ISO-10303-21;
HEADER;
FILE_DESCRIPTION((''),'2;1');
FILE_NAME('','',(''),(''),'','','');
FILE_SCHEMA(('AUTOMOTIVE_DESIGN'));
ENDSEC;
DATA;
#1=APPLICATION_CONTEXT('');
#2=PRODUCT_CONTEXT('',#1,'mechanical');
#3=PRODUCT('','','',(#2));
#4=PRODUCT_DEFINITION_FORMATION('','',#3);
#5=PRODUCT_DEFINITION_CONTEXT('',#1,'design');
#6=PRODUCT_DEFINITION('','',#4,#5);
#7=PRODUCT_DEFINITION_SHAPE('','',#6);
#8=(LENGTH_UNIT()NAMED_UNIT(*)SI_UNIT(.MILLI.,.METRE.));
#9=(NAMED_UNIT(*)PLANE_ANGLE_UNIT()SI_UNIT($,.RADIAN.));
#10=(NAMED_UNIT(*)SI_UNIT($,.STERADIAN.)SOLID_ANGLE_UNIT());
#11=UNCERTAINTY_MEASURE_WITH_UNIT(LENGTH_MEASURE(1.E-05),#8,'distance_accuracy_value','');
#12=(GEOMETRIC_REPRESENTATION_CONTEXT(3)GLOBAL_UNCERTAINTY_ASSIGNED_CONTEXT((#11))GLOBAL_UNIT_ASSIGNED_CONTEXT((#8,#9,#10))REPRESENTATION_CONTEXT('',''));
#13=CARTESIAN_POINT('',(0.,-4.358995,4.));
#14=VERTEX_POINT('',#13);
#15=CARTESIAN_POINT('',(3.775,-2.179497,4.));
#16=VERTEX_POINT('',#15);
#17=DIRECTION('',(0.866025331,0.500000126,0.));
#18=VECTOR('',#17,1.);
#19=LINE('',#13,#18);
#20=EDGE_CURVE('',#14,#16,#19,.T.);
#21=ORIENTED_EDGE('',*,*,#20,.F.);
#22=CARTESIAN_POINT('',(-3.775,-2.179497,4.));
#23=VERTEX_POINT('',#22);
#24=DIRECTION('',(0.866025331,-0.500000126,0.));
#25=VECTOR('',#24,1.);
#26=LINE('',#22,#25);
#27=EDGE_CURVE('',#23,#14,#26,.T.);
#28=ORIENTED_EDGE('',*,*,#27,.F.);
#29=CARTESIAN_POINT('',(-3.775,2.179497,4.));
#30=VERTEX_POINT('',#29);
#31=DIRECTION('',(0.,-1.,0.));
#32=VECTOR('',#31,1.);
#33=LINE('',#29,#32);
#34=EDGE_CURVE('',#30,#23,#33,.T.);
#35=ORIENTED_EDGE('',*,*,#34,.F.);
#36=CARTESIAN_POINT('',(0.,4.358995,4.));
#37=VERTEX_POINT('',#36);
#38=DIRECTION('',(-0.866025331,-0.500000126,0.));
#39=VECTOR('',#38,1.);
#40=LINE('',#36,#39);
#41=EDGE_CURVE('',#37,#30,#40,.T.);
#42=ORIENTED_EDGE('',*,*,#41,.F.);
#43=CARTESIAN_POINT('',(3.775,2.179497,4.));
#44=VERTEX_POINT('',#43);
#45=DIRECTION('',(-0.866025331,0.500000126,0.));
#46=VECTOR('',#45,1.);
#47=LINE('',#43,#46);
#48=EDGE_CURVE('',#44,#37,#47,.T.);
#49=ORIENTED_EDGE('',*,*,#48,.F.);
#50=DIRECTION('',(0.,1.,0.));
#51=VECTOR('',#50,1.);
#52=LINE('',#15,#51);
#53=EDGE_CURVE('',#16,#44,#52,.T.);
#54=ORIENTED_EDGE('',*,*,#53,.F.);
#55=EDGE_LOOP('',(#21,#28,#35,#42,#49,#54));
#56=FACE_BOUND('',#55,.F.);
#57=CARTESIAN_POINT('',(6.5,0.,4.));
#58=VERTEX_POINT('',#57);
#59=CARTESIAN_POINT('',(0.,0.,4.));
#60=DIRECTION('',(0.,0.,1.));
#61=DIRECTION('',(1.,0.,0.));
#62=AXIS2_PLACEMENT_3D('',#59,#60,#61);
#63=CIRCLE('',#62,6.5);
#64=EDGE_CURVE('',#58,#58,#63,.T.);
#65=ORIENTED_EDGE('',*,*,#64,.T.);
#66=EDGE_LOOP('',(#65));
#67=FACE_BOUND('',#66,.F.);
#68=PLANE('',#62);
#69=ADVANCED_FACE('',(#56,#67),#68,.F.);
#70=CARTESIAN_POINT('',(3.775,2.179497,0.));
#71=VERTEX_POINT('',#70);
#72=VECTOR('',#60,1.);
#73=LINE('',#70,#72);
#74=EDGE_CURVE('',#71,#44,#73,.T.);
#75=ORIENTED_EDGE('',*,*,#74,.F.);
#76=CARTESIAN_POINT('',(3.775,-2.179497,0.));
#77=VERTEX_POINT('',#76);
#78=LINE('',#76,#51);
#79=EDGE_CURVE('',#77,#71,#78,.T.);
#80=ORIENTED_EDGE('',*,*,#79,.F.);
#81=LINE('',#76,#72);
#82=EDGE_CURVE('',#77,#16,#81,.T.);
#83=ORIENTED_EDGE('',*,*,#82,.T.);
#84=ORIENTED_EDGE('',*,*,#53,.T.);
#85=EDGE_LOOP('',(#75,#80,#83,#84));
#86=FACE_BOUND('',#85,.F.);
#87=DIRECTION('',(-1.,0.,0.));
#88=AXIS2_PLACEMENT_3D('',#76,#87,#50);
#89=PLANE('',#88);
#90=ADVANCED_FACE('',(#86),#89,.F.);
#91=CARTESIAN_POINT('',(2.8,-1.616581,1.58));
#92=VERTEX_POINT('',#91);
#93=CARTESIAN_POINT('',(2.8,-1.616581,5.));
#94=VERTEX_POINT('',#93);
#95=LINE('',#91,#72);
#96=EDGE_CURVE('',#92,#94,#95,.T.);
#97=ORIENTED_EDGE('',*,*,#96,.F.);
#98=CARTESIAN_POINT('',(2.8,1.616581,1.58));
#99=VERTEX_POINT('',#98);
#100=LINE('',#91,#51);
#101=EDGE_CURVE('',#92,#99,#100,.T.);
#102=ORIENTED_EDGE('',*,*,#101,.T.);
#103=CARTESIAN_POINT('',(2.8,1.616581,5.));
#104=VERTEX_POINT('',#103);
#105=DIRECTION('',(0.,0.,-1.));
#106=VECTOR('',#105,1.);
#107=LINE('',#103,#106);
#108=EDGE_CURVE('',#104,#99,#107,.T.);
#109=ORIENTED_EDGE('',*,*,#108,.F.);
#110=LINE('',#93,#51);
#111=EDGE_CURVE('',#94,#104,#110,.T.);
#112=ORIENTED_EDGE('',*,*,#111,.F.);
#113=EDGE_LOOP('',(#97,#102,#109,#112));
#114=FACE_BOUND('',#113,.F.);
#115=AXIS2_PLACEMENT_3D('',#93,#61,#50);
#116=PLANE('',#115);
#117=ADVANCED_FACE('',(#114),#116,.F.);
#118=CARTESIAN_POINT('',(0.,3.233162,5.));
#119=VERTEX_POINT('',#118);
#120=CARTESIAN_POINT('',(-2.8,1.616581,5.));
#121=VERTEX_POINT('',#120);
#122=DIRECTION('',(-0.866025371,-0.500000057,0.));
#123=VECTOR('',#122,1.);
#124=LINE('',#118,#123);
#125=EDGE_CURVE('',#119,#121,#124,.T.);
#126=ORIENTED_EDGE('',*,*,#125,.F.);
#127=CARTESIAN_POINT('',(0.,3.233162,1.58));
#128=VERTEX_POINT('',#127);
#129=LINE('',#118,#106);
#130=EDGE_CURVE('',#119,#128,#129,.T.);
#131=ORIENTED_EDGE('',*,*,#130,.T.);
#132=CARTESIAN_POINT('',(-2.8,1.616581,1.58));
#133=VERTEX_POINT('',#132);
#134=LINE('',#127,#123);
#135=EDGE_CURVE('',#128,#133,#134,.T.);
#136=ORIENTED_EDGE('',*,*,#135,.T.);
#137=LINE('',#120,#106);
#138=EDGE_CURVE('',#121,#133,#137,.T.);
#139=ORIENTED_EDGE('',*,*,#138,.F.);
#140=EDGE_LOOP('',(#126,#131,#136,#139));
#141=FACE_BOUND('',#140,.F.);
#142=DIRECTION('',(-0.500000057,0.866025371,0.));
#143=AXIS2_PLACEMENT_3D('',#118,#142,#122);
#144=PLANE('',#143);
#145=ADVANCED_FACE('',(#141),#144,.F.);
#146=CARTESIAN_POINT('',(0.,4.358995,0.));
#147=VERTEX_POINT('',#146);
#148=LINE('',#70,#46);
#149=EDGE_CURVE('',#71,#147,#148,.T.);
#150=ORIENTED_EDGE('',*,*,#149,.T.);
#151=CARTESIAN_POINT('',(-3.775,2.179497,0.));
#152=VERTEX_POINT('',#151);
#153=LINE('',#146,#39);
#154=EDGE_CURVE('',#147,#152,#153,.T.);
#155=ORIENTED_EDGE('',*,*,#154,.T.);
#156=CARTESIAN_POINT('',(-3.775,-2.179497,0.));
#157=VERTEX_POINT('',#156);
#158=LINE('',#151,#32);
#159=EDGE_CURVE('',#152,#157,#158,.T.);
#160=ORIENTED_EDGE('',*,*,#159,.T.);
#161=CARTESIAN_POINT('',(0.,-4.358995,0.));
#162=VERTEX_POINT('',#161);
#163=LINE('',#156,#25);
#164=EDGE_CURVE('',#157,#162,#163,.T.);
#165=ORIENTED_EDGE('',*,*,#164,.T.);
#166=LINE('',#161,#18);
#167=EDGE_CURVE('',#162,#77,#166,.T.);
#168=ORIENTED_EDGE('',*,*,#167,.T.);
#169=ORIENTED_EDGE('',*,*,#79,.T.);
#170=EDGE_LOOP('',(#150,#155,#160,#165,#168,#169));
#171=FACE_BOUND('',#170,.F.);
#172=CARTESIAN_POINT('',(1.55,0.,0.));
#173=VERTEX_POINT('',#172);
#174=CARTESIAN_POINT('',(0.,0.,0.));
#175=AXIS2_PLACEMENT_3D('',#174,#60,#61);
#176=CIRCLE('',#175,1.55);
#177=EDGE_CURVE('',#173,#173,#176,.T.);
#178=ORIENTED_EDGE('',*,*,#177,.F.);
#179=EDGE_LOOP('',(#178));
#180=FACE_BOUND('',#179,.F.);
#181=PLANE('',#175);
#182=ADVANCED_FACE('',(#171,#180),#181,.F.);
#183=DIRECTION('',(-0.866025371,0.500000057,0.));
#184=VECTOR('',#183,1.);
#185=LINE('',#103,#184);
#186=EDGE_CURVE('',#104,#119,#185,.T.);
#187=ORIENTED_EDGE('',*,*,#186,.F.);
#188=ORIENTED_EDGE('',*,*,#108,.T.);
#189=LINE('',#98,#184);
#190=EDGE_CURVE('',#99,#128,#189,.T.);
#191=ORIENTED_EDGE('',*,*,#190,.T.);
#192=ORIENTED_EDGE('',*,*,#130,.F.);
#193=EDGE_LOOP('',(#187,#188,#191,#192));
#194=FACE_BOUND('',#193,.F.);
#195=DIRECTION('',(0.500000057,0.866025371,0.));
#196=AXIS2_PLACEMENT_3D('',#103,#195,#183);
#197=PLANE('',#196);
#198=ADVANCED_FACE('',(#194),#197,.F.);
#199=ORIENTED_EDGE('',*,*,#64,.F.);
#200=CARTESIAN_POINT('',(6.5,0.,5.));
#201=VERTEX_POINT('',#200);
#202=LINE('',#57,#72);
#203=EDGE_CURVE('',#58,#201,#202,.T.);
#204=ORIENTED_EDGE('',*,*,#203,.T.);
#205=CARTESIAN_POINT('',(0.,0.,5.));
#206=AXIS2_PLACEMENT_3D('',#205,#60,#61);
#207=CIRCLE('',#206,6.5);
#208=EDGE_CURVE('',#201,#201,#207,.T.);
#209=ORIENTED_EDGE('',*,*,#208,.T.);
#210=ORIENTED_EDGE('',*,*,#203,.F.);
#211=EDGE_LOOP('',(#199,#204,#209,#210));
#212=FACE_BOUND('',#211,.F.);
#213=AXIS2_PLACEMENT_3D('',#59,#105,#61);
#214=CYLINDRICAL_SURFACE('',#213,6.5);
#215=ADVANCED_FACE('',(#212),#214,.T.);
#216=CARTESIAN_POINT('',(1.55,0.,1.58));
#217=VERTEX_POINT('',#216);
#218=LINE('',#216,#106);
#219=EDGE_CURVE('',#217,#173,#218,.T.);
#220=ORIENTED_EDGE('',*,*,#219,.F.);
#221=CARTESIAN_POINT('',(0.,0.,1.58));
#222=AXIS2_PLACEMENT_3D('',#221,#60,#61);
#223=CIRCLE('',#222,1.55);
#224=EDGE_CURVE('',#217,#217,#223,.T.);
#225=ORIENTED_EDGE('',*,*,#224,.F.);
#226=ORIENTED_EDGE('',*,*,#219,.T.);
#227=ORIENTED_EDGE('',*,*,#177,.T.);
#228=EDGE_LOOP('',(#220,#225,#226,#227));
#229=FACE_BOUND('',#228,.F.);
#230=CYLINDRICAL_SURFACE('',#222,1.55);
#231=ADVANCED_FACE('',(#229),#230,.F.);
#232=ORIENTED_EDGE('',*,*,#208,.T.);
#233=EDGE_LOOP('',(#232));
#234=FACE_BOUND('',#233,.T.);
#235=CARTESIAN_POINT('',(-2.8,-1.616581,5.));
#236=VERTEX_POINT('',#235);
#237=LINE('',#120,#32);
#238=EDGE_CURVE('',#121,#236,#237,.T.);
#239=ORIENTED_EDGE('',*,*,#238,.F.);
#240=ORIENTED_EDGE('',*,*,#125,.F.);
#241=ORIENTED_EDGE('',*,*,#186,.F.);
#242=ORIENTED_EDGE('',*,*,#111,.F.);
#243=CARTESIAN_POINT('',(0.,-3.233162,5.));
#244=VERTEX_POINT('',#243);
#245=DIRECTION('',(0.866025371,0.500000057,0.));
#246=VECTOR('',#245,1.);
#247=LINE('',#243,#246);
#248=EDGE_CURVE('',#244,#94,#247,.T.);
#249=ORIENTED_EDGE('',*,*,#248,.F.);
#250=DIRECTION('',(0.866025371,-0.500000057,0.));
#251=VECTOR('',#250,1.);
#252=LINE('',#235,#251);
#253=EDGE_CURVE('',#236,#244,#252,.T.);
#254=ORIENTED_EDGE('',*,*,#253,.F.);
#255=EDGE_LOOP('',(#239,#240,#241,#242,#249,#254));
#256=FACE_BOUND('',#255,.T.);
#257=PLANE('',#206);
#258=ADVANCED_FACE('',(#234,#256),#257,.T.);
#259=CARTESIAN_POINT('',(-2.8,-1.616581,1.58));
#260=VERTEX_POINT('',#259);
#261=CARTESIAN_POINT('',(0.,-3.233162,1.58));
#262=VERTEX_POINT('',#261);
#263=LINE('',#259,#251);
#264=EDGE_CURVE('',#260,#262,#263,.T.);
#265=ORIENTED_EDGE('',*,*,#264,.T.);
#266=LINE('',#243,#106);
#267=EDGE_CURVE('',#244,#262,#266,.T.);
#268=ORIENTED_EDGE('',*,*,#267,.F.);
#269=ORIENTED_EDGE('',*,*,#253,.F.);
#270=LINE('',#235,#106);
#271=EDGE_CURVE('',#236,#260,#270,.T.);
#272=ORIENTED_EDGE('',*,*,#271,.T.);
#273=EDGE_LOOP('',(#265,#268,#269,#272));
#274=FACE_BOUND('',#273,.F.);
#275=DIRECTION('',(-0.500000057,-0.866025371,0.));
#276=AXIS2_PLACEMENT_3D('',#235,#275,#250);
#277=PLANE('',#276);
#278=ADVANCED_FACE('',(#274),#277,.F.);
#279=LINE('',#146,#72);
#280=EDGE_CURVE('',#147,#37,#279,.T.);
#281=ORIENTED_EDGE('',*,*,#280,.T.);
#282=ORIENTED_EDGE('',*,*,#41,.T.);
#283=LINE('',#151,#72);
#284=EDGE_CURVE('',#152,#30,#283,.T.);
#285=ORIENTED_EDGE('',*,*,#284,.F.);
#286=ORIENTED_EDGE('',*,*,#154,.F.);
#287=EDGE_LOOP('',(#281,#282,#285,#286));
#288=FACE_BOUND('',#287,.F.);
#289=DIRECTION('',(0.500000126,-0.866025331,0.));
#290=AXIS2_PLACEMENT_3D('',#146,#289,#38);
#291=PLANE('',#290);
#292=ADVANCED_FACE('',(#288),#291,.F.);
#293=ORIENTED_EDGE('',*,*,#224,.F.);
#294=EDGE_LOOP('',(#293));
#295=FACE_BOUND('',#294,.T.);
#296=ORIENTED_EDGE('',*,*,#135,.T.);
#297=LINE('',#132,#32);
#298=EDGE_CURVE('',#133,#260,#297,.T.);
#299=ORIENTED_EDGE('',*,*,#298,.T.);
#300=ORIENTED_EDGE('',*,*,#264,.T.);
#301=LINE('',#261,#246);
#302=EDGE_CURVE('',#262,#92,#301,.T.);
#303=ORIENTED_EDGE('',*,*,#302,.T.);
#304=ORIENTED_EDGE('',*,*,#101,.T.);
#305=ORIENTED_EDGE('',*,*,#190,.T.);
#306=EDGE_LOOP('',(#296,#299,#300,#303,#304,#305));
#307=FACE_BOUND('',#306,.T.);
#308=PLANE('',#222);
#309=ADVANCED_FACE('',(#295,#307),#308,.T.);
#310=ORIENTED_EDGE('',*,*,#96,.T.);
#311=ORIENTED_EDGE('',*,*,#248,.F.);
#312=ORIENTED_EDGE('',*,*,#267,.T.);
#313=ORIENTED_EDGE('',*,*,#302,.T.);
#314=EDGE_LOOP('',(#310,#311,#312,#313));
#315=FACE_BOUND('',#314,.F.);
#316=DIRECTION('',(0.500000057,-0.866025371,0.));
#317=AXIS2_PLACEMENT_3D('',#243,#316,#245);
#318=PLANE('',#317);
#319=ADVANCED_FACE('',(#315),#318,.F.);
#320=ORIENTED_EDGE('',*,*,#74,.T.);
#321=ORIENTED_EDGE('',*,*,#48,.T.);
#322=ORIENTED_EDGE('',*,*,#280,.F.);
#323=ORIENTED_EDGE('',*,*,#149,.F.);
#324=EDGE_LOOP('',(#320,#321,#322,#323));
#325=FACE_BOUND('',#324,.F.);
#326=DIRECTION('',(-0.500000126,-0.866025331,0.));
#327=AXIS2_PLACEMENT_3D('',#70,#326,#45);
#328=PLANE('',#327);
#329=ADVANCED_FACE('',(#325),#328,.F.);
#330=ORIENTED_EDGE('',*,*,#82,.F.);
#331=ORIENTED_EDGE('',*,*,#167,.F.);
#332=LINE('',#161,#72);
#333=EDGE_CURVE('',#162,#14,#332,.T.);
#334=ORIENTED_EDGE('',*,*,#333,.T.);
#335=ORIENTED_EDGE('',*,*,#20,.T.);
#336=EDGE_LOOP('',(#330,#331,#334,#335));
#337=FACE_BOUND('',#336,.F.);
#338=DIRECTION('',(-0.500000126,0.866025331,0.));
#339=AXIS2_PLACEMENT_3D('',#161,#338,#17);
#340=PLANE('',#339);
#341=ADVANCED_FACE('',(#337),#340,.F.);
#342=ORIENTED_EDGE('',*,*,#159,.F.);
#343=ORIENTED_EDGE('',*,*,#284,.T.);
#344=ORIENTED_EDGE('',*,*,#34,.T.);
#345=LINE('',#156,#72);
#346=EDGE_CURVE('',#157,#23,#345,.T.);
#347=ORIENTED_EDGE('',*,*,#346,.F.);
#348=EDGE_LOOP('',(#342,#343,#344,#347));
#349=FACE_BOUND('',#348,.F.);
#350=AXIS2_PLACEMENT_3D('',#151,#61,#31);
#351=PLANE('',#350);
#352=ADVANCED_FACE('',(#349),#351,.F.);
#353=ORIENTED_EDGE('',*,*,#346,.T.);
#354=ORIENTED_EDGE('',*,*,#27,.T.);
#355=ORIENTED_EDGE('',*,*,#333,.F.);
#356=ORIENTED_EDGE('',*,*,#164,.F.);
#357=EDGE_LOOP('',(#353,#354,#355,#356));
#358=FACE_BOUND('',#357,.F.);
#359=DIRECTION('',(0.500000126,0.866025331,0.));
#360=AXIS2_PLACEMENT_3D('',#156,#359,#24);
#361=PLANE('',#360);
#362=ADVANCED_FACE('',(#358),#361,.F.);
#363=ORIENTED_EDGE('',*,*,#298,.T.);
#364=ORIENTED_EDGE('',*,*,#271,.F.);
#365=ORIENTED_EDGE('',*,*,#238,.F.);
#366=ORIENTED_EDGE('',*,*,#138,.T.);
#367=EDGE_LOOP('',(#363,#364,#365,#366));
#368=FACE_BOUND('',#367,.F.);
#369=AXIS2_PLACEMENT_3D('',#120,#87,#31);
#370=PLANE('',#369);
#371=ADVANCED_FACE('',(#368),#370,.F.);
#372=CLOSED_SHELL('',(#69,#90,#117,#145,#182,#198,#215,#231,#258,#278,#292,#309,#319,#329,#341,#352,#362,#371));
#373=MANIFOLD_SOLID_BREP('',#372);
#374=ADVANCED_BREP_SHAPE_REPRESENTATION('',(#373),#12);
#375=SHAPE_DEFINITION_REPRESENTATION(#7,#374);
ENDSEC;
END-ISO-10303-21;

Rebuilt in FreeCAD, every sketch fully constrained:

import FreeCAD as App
import Part
import Sketcher
Q = App.Units.Quantity

doc = App.newDocument("Part")
body = doc.addObject("PartDesign::Body", "Body")

sketch1 = body.newObject("Sketcher::SketchObject", "Sketch")
sketch1.AttachmentSupport = (doc.getObject("XY_Plane"), [""])
sketch1.MapMode = "FlatFace"
sketch1.addGeometry([
    Part.LineSegment(App.Vector(3.8, -2.2, 0), App.Vector(3.8, 2.2, 0)),
    Part.LineSegment(App.Vector(3.8, 2.2, 0), App.Vector(0, 4.4, 0)),
    Part.LineSegment(App.Vector(0, 4.4, 0), App.Vector(-3.8, 2.2, 0)),
    Part.LineSegment(App.Vector(-3.8, 2.2, 0), App.Vector(-3.8, -2.2, 0)),
    Part.LineSegment(App.Vector(-3.8, -2.2, 0), App.Vector(0, -4.4, 0)),
    Part.LineSegment(App.Vector(0, -4.4, 0), App.Vector(3.8, -2.2, 0)),
], False)
sketch1.addConstraint([
    Sketcher.Constraint("Coincident", 0, 2, 1, 1),
    Sketcher.Constraint("Coincident", 1, 2, 2, 1),
    Sketcher.Constraint("Coincident", 2, 2, 3, 1),
    Sketcher.Constraint("Coincident", 3, 2, 4, 1),
    Sketcher.Constraint("Coincident", 4, 2, 5, 1),
    Sketcher.Constraint("Coincident", 5, 2, 0, 1),
    Sketcher.Constraint("Vertical", 0),
    Sketcher.Constraint("Vertical", 3),
    Sketcher.Constraint("Symmetric", 0, 2, 3, 2, -1, 1),
    Sketcher.Constraint("Symmetric", 1, 2, 4, 2, -1, 1),
    Sketcher.Constraint("PointOnObject", 1, 2, -2),
    Sketcher.Constraint("Parallel", 2, 5),
    Sketcher.Constraint("Horizontal", 0, 2, 2, 2),
    Sketcher.Constraint("Angle", 1, Q("149.999992 deg")),
    Sketcher.Constraint("DistanceX", 2, 2, 0, 2, Q("7.55 mm")),
    Sketcher.Constraint("DistanceY", 0, 1, 0, 2, Q("4.358994 mm")),
])
pad1 = body.newObject("PartDesign::Pad", "Pad")
pad1.Profile = sketch1
pad1.Length = 4

sketch2 = body.newObject("Sketcher::SketchObject", "Sketch001")
sketch2.AttachmentSupport = (doc.getObject("XY_Plane"), [""])
sketch2.MapMode = "FlatFace"
sketch2.AttachmentOffset = App.Placement(App.Vector(0, 0, 4), App.Rotation())
sketch2.addGeometry([
    Part.LineSegment(App.Vector(2.8, -1.6, 0), App.Vector(2.8, 1.6, 0)),
    Part.LineSegment(App.Vector(2.8, 1.6, 0), App.Vector(0, 3.2, 0)),
    Part.LineSegment(App.Vector(0, 3.2, 0), App.Vector(-2.8, 1.6, 0)),
    Part.LineSegment(App.Vector(-2.8, 1.6, 0), App.Vector(-2.8, -1.6, 0)),
    Part.LineSegment(App.Vector(-2.8, -1.6, 0), App.Vector(0, -3.2, 0)),
    Part.LineSegment(App.Vector(0, -3.2, 0), App.Vector(2.8, -1.6, 0)),
], False)
sketch2.addConstraint([
    Sketcher.Constraint("Coincident", 0, 2, 1, 1),
    Sketcher.Constraint("Coincident", 1, 2, 2, 1),
    Sketcher.Constraint("Coincident", 2, 2, 3, 1),
    Sketcher.Constraint("Coincident", 3, 2, 4, 1),
    Sketcher.Constraint("Coincident", 4, 2, 5, 1),
    Sketcher.Constraint("Coincident", 5, 2, 0, 1),
    Sketcher.Constraint("Vertical", 0),
    Sketcher.Constraint("Vertical", 3),
    Sketcher.Constraint("Symmetric", 0, 2, 3, 2, -1, 1),
    Sketcher.Constraint("Symmetric", 1, 2, 4, 2, -1, 1),
    Sketcher.Constraint("PointOnObject", 1, 2, -2),
    Sketcher.Constraint("Parallel", 2, 5),
    Sketcher.Constraint("Horizontal", 0, 2, 2, 2),
    Sketcher.Constraint("Angle", 1, Q("149.999996 deg")),
    Sketcher.Constraint("DistanceX", -1, 1, 0, 2, Q("2.8 mm")),
    Sketcher.Constraint("DistanceY", 0, 1, 0, 2, Q("3.233162 mm")),
])
pocket1 = body.newObject("PartDesign::Pocket", "Pocket")
pocket1.Profile = sketch2
pocket1.Length = 2.42

sketch3 = body.newObject("Sketcher::SketchObject", "Sketch002")
sketch3.AttachmentSupport = (doc.getObject("XY_Plane"), [""])
sketch3.MapMode = "FlatFace"
sketch3.AttachmentOffset = App.Placement(App.Vector(0, 0, 1.58), App.Rotation())
sketch3.addGeometry(Part.Circle(App.Vector(0, 0, 0), App.Vector(0, 0, 1), 1.6), False)
sketch3.addConstraint([
    Sketcher.Constraint("Coincident", 0, 3, -1, 1),
    Sketcher.Constraint("Diameter", 0, Q("3.1 mm")),
])
pocket2 = body.newObject("PartDesign::Pocket", "Pocket001")
pocket2.Profile = sketch3
pocket2.Length = 25

sketch4 = body.newObject("Sketcher::SketchObject", "Sketch003")
sketch4.AttachmentSupport = (doc.getObject("XY_Plane"), [""])
sketch4.MapMode = "FlatFace"
sketch4.AttachmentOffset = App.Placement(App.Vector(0, 0, 4), App.Rotation())
sketch4.addGeometry(Part.Circle(App.Vector(0, 0, 0), App.Vector(0, 0, 1), 6), False)
sketch4.addConstraint([
    Sketcher.Constraint("Coincident", 0, 3, -1, 1),
    Sketcher.Constraint("Diameter", 0, Q("13 mm")),
])
pad2 = body.newObject("PartDesign::Pad", "Pad001")
pad2.Profile = sketch4
pad2.Length = 1

sketch5 = body.newObject("Sketcher::SketchObject", "Sketch004")
sketch5.AttachmentSupport = (doc.getObject("XY_Plane"), [""])
sketch5.MapMode = "FlatFace"
sketch5.AttachmentOffset = App.Placement(App.Vector(0, 0, 5), App.Rotation())
sketch5.addGeometry([
    Part.LineSegment(App.Vector(2.8, -1.6, 0), App.Vector(2.8, 1.6, 0)),
    Part.LineSegment(App.Vector(2.8, 1.6, 0), App.Vector(0, 3.2, 0)),
    Part.LineSegment(App.Vector(0, 3.2, 0), App.Vector(-2.8, 1.6, 0)),
    Part.LineSegment(App.Vector(-2.8, 1.6, 0), App.Vector(-2.8, -1.6, 0)),
    Part.LineSegment(App.Vector(-2.8, -1.6, 0), App.Vector(0, -3.2, 0)),
    Part.LineSegment(App.Vector(0, -3.2, 0), App.Vector(2.8, -1.6, 0)),
], False)
sketch5.addConstraint([
    Sketcher.Constraint("Coincident", 0, 2, 1, 1),
    Sketcher.Constraint("Coincident", 1, 2, 2, 1),
    Sketcher.Constraint("Coincident", 2, 2, 3, 1),
    Sketcher.Constraint("Coincident", 3, 2, 4, 1),
    Sketcher.Constraint("Coincident", 4, 2, 5, 1),
    Sketcher.Constraint("Coincident", 5, 2, 0, 1),
    Sketcher.Constraint("Vertical", 0),
    Sketcher.Constraint("Vertical", 3),
    Sketcher.Constraint("Symmetric", 0, 2, 3, 2, -1, 1),
    Sketcher.Constraint("Symmetric", 1, 2, 4, 2, -1, 1),
    Sketcher.Constraint("PointOnObject", 1, 2, -2),
    Sketcher.Constraint("Parallel", 2, 5),
    Sketcher.Constraint("Horizontal", 0, 2, 2, 2),
    Sketcher.Constraint("Angle", 1, Q("149.999996 deg")),
    Sketcher.Constraint("DistanceX", -1, 1, 0, 2, Q("2.8 mm")),
    Sketcher.Constraint("DistanceY", 0, 1, 0, 2, Q("3.233162 mm")),
])
pocket3 = body.newObject("PartDesign::Pocket", "Pocket002")
pocket3.Profile = sketch5
pocket3.Length = 1.8

doc.recompute()
